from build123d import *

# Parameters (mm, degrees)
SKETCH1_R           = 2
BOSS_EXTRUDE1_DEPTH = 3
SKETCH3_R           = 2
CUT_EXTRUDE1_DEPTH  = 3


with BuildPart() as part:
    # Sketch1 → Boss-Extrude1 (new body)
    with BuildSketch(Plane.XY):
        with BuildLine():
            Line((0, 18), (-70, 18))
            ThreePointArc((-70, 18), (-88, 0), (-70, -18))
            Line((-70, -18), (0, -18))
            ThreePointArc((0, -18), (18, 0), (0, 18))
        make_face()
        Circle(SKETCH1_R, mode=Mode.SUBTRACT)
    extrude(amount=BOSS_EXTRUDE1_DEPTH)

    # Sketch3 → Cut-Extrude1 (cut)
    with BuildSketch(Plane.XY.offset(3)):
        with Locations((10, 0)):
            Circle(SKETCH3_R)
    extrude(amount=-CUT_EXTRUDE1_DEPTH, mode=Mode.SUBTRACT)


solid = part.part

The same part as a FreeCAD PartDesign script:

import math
import FreeCAD as App
import Part
import Sketcher
from FreeCAD import Vector
Q = App.Units.Quantity

doc = App.newDocument("Part")
body = doc.addObject("PartDesign::Body", "Body")

# Sketch on XY plane
sketch1 = body.newObject("Sketcher::SketchObject", "Sketch")
sketch1.AttachmentSupport = (doc.getObject("XY_Plane"), [""])
sketch1.MapMode = "FlatFace"
sketch1.addGeometry([
    Part.LineSegment(Vector(0, 18, 0), Vector(-70, 18, 0)),  # 0
    Part.ArcOfCircle(Part.Circle(Vector(-70, 0, 0), Vector(0, 0, 1), 18), math.radians(90), math.radians(270)),  # 1
    Part.LineSegment(Vector(-70, -18, 0), Vector(0, -18, 0)),  # 2
    Part.ArcOfCircle(Part.Circle(Vector(0, 0, 0), Vector(0, 0, 1), 18), math.radians(-90), math.radians(90)),  # 3
    Part.Circle(Vector(0, 0, 0), Vector(0, 0, 1), 2),  # 4
], False)
sketch1.addConstraint([
    Sketcher.Constraint("Tangent", 0, 2, 1, 1),
    Sketcher.Constraint("Tangent", 1, 2, 2, 1),
    Sketcher.Constraint("Tangent", 2, 2, 3, 1),
    Sketcher.Constraint("Tangent", 3, 2, 0, 1),
    Sketcher.Constraint("Horizontal", 0),
    Sketcher.Constraint("Horizontal", 2),
    Sketcher.Constraint("Coincident", 3, 3, -1, 1),
    Sketcher.Constraint("Coincident", 4, 3, -1, 1),
    Sketcher.Constraint("Diameter", 4, Q("4 mm")),
    Sketcher.Constraint("Radius", 1, Q("18 mm")),
    Sketcher.Constraint("DistanceX", 0, 2, 0, 1, Q("70 mm")),
])
pad1 = body.newObject("PartDesign::Pad", "Pad")
pad1.Profile = sketch1
pad1.Length = 3

# Sketch on XY plane
sketch2 = body.newObject("Sketcher::SketchObject", "Sketch001")
sketch2.AttachmentSupport = (doc.getObject("XY_Plane"), [""])
sketch2.MapMode = "FlatFace"
sketch2.AttachmentOffset = App.Placement(Vector(0, 0, 3), App.Rotation())
sketch2.addGeometry(Part.Circle(Vector(10, 0, 0), Vector(0, 0, 1), 2), False)
sketch2.addConstraint([
    Sketcher.Constraint("PointOnObject", 0, 3, -1),
    Sketcher.Constraint("Diameter", 0, Q("4 mm")),
    Sketcher.Constraint("DistanceX", -1, 1, 0, 3, Q("10 mm")),
])
pocket1 = body.newObject("PartDesign::Pocket", "Pocket")
pocket1.Profile = sketch2
pocket1.Length = 3

doc.recompute()
